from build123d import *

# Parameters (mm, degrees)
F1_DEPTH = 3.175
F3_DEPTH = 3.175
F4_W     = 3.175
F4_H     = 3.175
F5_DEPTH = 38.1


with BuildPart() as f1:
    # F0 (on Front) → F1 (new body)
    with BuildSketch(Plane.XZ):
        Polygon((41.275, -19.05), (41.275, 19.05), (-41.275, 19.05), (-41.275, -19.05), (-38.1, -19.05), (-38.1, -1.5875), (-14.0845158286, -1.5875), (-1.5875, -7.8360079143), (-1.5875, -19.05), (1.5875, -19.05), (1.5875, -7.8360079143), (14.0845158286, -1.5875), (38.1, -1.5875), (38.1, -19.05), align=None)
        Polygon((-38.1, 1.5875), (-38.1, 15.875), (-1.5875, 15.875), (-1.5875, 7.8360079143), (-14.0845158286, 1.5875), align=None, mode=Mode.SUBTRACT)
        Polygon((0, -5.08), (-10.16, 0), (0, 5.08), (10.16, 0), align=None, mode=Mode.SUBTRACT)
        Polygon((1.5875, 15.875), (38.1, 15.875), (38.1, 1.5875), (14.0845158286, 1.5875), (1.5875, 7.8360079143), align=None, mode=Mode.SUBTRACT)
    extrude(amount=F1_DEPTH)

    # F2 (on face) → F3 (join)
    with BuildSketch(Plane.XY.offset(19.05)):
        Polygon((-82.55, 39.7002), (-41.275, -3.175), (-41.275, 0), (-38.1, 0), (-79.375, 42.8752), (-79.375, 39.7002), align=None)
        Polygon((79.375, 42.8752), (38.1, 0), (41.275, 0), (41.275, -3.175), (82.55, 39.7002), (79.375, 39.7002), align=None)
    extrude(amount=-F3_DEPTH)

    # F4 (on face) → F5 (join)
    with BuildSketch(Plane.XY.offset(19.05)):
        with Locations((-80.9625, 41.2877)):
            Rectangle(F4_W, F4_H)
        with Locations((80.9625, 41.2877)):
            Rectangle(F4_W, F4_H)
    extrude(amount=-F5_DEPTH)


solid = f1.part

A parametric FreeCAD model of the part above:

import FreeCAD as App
import Part
import Sketcher

V = App.Vector
Q = App.Units.Quantity


def add_polygon(sketch, points):
    """Adds a closed chain of lines whose ends are joined by coincident constraints."""
    first, n = sketch.GeometryCount, len(points)
    for a, b in zip(points, points[1:] + points[:1]):
        sketch.addGeometry(Part.LineSegment(App.Vector(*a, 0), App.Vector(*b, 0)), False)
    for i in range(n):
        sketch.addConstraint(Sketcher.Constraint("Coincident", first + i, 2, first + (i + 1) % n, 1))

doc = App.newDocument("Part")
params = doc.addObject("Spreadsheet::Sheet", "Params")
for row, (alias, value) in enumerate([
    ("sketch1_height", "1.5 in"),
    ("sketch1_width", "3.25 in"),
    ("sketch1_height2", "0.6875 in"),
    ("sketch1_height3", "0.5625 in"),
    ("pad1_length", "0.125 in"),
    ("sketch2_width", "0.125 in"),
    ("pad2_length", "0.125 in"),
    ("sketch3_width", "0.125 in"),
    ("pad3_length", "1.5 in"),
], start=1):
    params.set(f"A{row}", alias)
    params.set(f"B{row}", "=" + value)
    params.setAlias(f"B{row}", alias)

body = doc.addObject("PartDesign::Body", "Body")

# Sketch on XZ plane
sketch1 = body.newObject("Sketcher::SketchObject", "Sketch")
sketch1.AttachmentSupport = (doc.getObject("XZ_Plane"), [""])
sketch1.MapMode = "FlatFace"
add_polygon(sketch1, [(41.275, -19.05), (41.275, 19.05), (-41.275, 19.05), (-41.275, -19.05), (-38.1, -19.05), (-38.1, -1.5875), (-14.084516, -1.5875), (-1.5875, -7.836008), (-1.5875, -19.05), (1.5875, -19.05), (1.5875, -7.836008), (14.084516, -1.5875), (38.1, -1.5875), (38.1, -19.05)])  # lines 0-13
add_polygon(sketch1, [(10.16, 0), (0, -5.08), (-10.16, 0), (0, 5.08)])  # lines 14-17
add_polygon(sketch1, [(-14.084516, 1.5875), (-38.1, 1.5875), (-38.1, 15.875), (-1.5875, 15.875), (-1.5875, 7.836008)])  # lines 18-22
add_polygon(sketch1, [(1.5875, 7.836008), (1.5875, 15.875), (38.1, 15.875), (38.1, 1.5875), (14.084516, 1.5875)])  # lines 23-27
sketch1.addConstraint([
    Sketcher.Constraint("Vertical", 0),
    Sketcher.Constraint("Horizontal", 1),
    Sketcher.Constraint("Vertical", 2),
    Sketcher.Constraint("Horizontal", 3),
    Sketcher.Constraint("Vertical", 4),
    Sketcher.Constraint("Horizontal", 5),
    Sketcher.Constraint("Vertical", 7),
    Sketcher.Constraint("Horizontal", 8),
    Sketcher.Constraint("Vertical", 9),
    Sketcher.Constraint("Horizontal", 11),
    Sketcher.Constraint("Vertical", 12),
    Sketcher.Constraint("Horizontal", 13),
    Sketcher.Constraint("Horizontal", 18),
    Sketcher.Constraint("Vertical", 19),
    Sketcher.Constraint("Horizontal", 20),
    Sketcher.Constraint("Vertical", 21),
    Sketcher.Constraint("Vertical", 23),
    Sketcher.Constraint("Horizontal", 24),
    Sketcher.Constraint("Vertical", 25),
    Sketcher.Constraint("Horizontal", 26),
    Sketcher.Constraint("Symmetric", 0, 2, 2, 2, -1, 1),
    Sketcher.Constraint("Symmetric", 14, 2, 16, 2, -1, 1),
    Sketcher.Constraint("Symmetric", 15, 2, 17, 2, -1, 1),
    Sketcher.Constraint("Symmetric", 11, 2, 18, 2, -1, 1),
    Sketcher.Constraint("Symmetric", 9, 2, 21, 2, -1, 1),
    Sketcher.Constraint("Symmetric", 4, 2, 25, 2, -1, 1),
    Sketcher.Constraint("Symmetric", 6, 2, 27, 2, -1, 1),
    Sketcher.Constraint("Symmetric", 6, 2, 9, 2, -2),
    Sketcher.Constraint("Symmetric", 5, 2, 10, 2, -2),
    Sketcher.Constraint("Symmetric", 3, 2, 12, 2, -2),
    Sketcher.Constraint("PointOnObject", 14, 2, -2),
    Sketcher.Constraint("PointOnObject", 15, 2, -1),
    Sketcher.Constraint("Parallel", 10, 14),
    Sketcher.Constraint("Parallel", 16, 22),
    Sketcher.Constraint("Parallel", 17, 27),
    Sketcher.Constraint("Horizontal", 3, 2, 7, 2),
    Sketcher.Constraint("Horizontal", 20, 2, 23, 2),
    Sketcher.Constraint("Equal", 3, 8),
    Sketcher.Constraint("DistanceY", 0, 1, 0, 2, Q("1.5 in")),
    Sketcher.Constraint("DistanceX", 1, 2, 1, 1, Q("3.25 in")),
    Sketcher.Constraint("DistanceX", 3, 2, -1, 1, Q("1.5 in")),
    Sketcher.Constraint("DistanceY", 14, 2, -1, 1, Q("0.2 in")),
    Sketcher.Constraint("DistanceX", 15, 2, -1, 1, Q("0.4 in")),
    Sketcher.Constraint("DistanceY", 4, 1, 4, 2, Q("0.6875 in")),
    Sketcher.Constraint("DistanceY", 19, 1, 19, 2, Q("0.5625 in")),
    Sketcher.Constraint("Distance", 6, 13.972088),
])
sketch1.setExpression("Constraints[66]", "Params.sketch1_height")
sketch1.setExpression("Constraints[67]", "Params.sketch1_width")
sketch1.setExpression("Constraints[71]", "Params.sketch1_height2")
sketch1.setExpression("Constraints[72]", "Params.sketch1_height3")
pad1 = body.newObject("PartDesign::Pad", "Pad")
pad1.Profile = sketch1
pad1.setExpression("Length", "Params.pad1_length")

# Sketch on XY plane
sketch2 = body.newObject("Sketcher::SketchObject", "Sketch001")
sketch2.AttachmentSupport = (doc.getObject("XY_Plane"), [""])
sketch2.MapMode = "FlatFace"
sketch2.AttachmentOffset = App.Placement(V(0, 0, 0.75 * 25.4), App.Rotation())
add_polygon(sketch2, [(-82.55, 39.7002), (-41.275, -3.175), (-41.275, 0), (-38.1, 0), (-79.375, 42.8752), (-79.375, 39.7002)])  # lines 0-5
add_polygon(sketch2, [(79.375, 42.8752), (38.1, 0), (41.275, 0), (41.275, -3.175), (82.55, 39.7002), (79.375, 39.7002)])  # lines 6-11
sketch2.addConstraint([
    Sketcher.Constraint("Vertical", 1),
    Sketcher.Constraint("Horizontal", 2),
    Sketcher.Constraint("Vertical", 4),
    Sketcher.Constraint("Horizontal", 5),
    Sketcher.Constraint("Horizontal", 7),
    Sketcher.Constraint("Vertical", 8),
    Sketcher.Constraint("Horizontal", 10),
    Sketcher.Constraint("Vertical", 11),
    Sketcher.Constraint("Symmetric", 2, 2, 6, 2, -1, 1),
    Sketcher.Constraint("Symmetric", 1, 2, 7, 2, -2),
    Sketcher.Constraint("Symmetric", 5, 2, 9, 2, -2),
    Sketcher.Constraint("Symmetric", 3, 2, 11, 2, -2),
    Sketcher.Constraint("Parallel", 0, 3),
    Sketcher.Constraint("Parallel", 6, 9),
    Sketcher.Constraint("Equal", 2, 5),
    Sketcher.Constraint("Equal", 10, 1),
    Sketcher.Constraint("DistanceX", 2, 2, 6, 2, Q("3 in")),
    Sketcher.Constraint("DistanceX", 3, 2, 1, 2, Q("1.5 in")),
    Sketcher.Constraint("DistanceX", 2, 1, 2, 2, Q("0.125 in")),
    Sketcher.Constraint("DistanceY", -1, 1, 3, 2, Q("1.688 in")),
])
sketch2.setExpression("Constraints[30]", "Params.sketch2_width")
pad2 = body.newObject("PartDesign::Pad", "Pad001")
pad2.Profile = sketch2
pad2.setExpression("Length", "Params.pad2_length")
pad2.Reversed = True

# Sketch on XY plane
sketch3 = body.newObject("Sketcher::SketchObject", "Sketch002")
sketch3.AttachmentSupport = (doc.getObject("XY_Plane"), [""])
sketch3.MapMode = "FlatFace"
sketch3.AttachmentOffset = App.Placement(V(0, 0, 0.75 * 25.4), App.Rotation())
add_polygon(sketch3, [(-82.55, 42.8752), (-82.55, 39.7002), (-79.375, 39.7002), (-79.375, 42.8752)])  # lines 0-3
add_polygon(sketch3, [(79.375, 42.8752), (79.375, 39.7002), (82.55, 39.7002), (82.55, 42.8752)])  # lines 4-7
sketch3.addConstraint([
    Sketcher.Constraint("Vertical", 0),
    Sketcher.Constraint("Horizontal", 1),
    Sketcher.Constraint("Vertical", 2),
    Sketcher.Constraint("Horizontal", 3),
    Sketcher.Constraint("Vertical", 4),
    Sketcher.Constraint("Horizontal", 5),
    Sketcher.Constraint("Vertical", 6),
    Sketcher.Constraint("Horizontal", 7),
    Sketcher.Constraint("Symmetric", 1, 2, 4, 2, -2),
    Sketcher.Constraint("Symmetric", 3, 2, 6, 2, -2),
    Sketcher.Constraint("Equal", 7, 0),
    Sketcher.Constraint("DistanceX", 0, 2, 5, 2, Q("6.5 in")),
    Sketcher.Constraint("DistanceX", 1, 1, 1, 2, Q("0.125 in")),
    Sketcher.Constraint("DistanceY", -1, 1, 0, 2, Q("1.563 in")),
])
sketch3.setExpression("Constraints[20]", "Params.sketch3_width")
pad3 = body.newObject("PartDesign::Pad", "Pad002")
pad3.Profile = sketch3
pad3.setExpression("Length", "Params.pad3_length")
pad3.Reversed = True

doc.recompute()
